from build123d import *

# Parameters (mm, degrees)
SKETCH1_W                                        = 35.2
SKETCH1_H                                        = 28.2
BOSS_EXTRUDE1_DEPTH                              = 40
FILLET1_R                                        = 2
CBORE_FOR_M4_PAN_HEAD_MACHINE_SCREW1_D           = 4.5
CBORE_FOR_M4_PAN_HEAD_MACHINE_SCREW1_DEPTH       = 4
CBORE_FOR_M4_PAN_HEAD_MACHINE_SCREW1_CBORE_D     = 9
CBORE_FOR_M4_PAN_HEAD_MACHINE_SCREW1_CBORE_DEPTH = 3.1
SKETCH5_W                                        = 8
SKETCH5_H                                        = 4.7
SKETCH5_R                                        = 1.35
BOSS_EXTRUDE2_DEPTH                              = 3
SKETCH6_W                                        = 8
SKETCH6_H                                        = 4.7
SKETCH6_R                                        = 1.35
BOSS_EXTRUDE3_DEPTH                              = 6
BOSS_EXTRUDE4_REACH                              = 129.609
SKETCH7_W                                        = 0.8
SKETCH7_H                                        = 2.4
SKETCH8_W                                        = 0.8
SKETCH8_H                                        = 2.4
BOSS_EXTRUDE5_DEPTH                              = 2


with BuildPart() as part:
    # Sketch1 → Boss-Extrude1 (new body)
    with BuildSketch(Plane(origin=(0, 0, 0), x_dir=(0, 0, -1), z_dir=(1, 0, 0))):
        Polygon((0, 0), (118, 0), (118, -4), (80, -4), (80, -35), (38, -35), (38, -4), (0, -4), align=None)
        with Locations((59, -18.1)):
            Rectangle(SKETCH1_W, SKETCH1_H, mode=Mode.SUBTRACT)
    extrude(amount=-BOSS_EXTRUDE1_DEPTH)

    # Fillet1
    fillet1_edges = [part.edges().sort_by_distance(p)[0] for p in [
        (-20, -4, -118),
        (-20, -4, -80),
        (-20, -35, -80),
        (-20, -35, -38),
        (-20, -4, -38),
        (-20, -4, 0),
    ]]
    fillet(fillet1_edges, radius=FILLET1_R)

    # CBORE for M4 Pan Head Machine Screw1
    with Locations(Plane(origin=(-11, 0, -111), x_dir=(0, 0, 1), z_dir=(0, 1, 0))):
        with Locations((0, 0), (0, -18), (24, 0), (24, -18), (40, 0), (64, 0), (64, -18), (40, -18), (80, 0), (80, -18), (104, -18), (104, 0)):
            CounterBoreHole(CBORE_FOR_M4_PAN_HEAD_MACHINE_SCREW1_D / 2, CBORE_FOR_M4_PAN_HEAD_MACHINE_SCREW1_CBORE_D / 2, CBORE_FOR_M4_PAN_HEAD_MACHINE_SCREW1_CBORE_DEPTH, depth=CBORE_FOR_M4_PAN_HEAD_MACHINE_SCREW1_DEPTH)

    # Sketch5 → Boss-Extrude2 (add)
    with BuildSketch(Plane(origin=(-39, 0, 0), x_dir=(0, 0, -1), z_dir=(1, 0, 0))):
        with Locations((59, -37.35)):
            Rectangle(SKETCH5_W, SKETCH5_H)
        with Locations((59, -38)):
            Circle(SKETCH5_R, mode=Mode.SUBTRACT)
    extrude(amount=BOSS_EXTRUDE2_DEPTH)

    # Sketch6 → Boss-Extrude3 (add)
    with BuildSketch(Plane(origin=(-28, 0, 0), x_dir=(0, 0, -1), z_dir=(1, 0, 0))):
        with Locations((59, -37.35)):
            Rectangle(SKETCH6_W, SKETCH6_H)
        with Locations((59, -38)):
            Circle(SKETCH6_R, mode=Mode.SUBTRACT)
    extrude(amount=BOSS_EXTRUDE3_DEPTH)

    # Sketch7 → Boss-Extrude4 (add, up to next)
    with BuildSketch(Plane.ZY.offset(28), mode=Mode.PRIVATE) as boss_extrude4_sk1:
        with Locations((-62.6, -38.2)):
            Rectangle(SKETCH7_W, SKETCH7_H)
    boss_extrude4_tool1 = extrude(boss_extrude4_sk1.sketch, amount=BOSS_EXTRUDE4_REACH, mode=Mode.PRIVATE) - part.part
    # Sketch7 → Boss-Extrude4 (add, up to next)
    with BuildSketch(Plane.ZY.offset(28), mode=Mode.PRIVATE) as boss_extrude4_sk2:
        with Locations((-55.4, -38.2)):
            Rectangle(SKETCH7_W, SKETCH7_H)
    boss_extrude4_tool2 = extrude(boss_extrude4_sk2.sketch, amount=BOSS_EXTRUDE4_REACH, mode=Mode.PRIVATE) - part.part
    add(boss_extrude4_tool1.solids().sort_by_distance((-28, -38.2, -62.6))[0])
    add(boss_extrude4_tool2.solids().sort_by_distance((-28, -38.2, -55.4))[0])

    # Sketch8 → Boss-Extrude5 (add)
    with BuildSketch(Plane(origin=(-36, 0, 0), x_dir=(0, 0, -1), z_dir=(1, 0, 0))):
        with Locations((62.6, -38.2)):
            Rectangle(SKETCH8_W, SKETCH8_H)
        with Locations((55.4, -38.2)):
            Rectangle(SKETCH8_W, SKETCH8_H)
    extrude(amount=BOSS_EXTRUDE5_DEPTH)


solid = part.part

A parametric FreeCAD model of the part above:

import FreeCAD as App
import Part
import Sketcher
from FreeCAD import Vector
Q = App.Units.Quantity


def edges_at(feature, points):
    """Names of the edges that pass closest to the given points."""
    edges = feature.Shape.Edges
    near = lambda p: min(range(len(edges)), key=lambda i: edges[i].distToShape(Part.Vertex(*p))[0])
    return sorted({f"Edge{near(p) + 1}" for p in points})


def add_polygon(sketch, points):
    """Adds a closed chain of lines whose ends are joined by coincident constraints."""
    first, n = sketch.GeometryCount, len(points)
    for a, b in zip(points, points[1:] + points[:1]):
        sketch.addGeometry(Part.LineSegment(App.Vector(*a, 0), App.Vector(*b, 0)), False)
    for i in range(n):
        sketch.addConstraint(Sketcher.Constraint("Coincident", first + i, 2, first + (i + 1) % n, 1))

doc = App.newDocument("Part")
body = doc.addObject("PartDesign::Body", "Body")

sketch1 = body.newObject("Sketcher::SketchObject", "Sketch")
sketch1.AttachmentSupport = (doc.getObject("YZ_Plane"), [""])
sketch1.MapMode = "FlatFace"
add_polygon(sketch1, [(0, -118), (0, 0), (-4, 0), (-4, -38), (-35, -38), (-35, -80), (-4, -80), (-4, -118)])
add_polygon(sketch1, [(-32.2, -41.4), (-4, -41.4), (-4, -76.6), (-32.2, -76.6)])
sketch1.addConstraint(Sketcher.Constraint("Vertical", 0))
sketch1.addConstraint(Sketcher.Constraint("Horizontal", 1))
sketch1.addConstraint(Sketcher.Constraint("Vertical", 2))
sketch1.addConstraint(Sketcher.Constraint("Horizontal", 3))
sketch1.addConstraint(Sketcher.Constraint("Vertical", 4))
sketch1.addConstraint(Sketcher.Constraint("Horizontal", 5))
sketch1.addConstraint(Sketcher.Constraint("Vertical", 6))
sketch1.addConstraint(Sketcher.Constraint("Horizontal", 7))
sketch1.addConstraint(Sketcher.Constraint("Horizontal", 8))
sketch1.addConstraint(Sketcher.Constraint("Vertical", 9))
sketch1.addConstraint(Sketcher.Constraint("Horizontal", 10))
sketch1.addConstraint(Sketcher.Constraint("Vertical", 11))
sketch1.addConstraint(Sketcher.Constraint("Coincident", 0, 2, -1, 1))
sketch1.addConstraint(Sketcher.Constraint("Vertical", 2, 2, 5, 2))
sketch1.addConstraint(Sketcher.Constraint("Vertical", 6, 2, 8, 2))
sketch1.addConstraint(Sketcher.Constraint("Equal", 2, 6))
sketch1.addConstraint(Sketcher.Constraint("DistanceX", 1, 2, 1, 1, Q("4 mm")))
sketch1.addConstraint(Sketcher.Constraint("DistanceX", 3, 2, 3, 1, Q("31 mm")))
sketch1.addConstraint(Sketcher.Constraint("DistanceY", 0, 1, 0, 2, Q("118 mm")))
sketch1.addConstraint(Sketcher.Constraint("DistanceY", 2, 2, 2, 1, Q("38 mm")))
sketch1.addConstraint(Sketcher.Constraint("DistanceX", 8, 1, 8, 2, Q("28.2 mm")))
sketch1.addConstraint(Sketcher.Constraint("DistanceY", 9, 2, 9, 1, Q("35.2 mm")))
sketch1.addConstraint(Sketcher.Constraint("DistanceY", 8, 2, -1, 1, Q("41.4 mm")))
pad1 = body.newObject("PartDesign::Pad", "Pad")
pad1.Profile = sketch1
pad1.Length = 40
pad1.Reversed = True
doc.recompute()

fillet = body.newObject("PartDesign::Fillet", "Fillet")
fillet.Base = (pad1, edges_at(pad1, [
    (-20, -4, -118),
    (-20, -4, -80),
    (-20, -35, -80),
    (-20, -35, -38),
    (-20, -4, -38),
    (-20, -4, 0),
]))
fillet.Radius = 2

sketch2 = body.newObject("Sketcher::SketchObject", "Sketch001")
sketch2.AttachmentSupport = (doc.getObject("XZ_Plane"), [""])
sketch2.MapMode = "FlatFace"
sketch2.addGeometry(Part.Circle(Vector(-11, -111, 0), Vector(0, 0, 1), 2.25), False)
sketch2.addGeometry(Part.Circle(Vector(-29, -111, 0), Vector(0, 0, 1), 2.25), False)
sketch2.addGeometry(Part.Circle(Vector(-11, -87, 0), Vector(0, 0, 1), 2.25), False)
sketch2.addGeometry(Part.Circle(Vector(-29, -87, 0), Vector(0, 0, 1), 2.25), False)
sketch2.addGeometry(Part.Circle(Vector(-11, -71, 0), Vector(0, 0, 1), 2.25), False)
sketch2.addGeometry(Part.Circle(Vector(-11, -47, 0), Vector(0, 0, 1), 2.25), False)
sketch2.addGeometry(Part.Circle(Vector(-29, -47, 0), Vector(0, 0, 1), 2.25), False)
sketch2.addGeometry(Part.Circle(Vector(-29, -71, 0), Vector(0, 0, 1), 2.25), False)
sketch2.addGeometry(Part.Circle(Vector(-11, -31, 0), Vector(0, 0, 1), 2.25), False)
sketch2.addGeometry(Part.Circle(Vector(-29, -31, 0), Vector(0, 0, 1), 2.25), False)
sketch2.addGeometry(Part.Circle(Vector(-29, -7, 0), Vector(0, 0, 1), 2.25), False)
sketch2.addGeometry(Part.Circle(Vector(-11, -7, 0), Vector(0, 0, 1), 2.25), False)
sketch2.addConstraint(Sketcher.Constraint("Equal", 0, 1))
sketch2.addConstraint(Sketcher.Constraint("Equal", 1, 2))
sketch2.addConstraint(Sketcher.Constraint("Equal", 2, 3))
sketch2.addConstraint(Sketcher.Constraint("Equal", 3, 4))
sketch2.addConstraint(Sketcher.Constraint("Equal", 4, 5))
sketch2.addConstraint(Sketcher.Constraint("Equal", 5, 6))
sketch2.addConstraint(Sketcher.Constraint("Equal", 6, 7))
sketch2.addConstraint(Sketcher.Constraint("Equal", 7, 8))
sketch2.addConstraint(Sketcher.Constraint("Equal", 8, 9))
sketch2.addConstraint(Sketcher.Constraint("Equal", 9, 10))
sketch2.addConstraint(Sketcher.Constraint("Equal", 10, 11))
sketch2.addConstraint(Sketcher.Constraint("Horizontal", 0, 3, 1, 3))
sketch2.addConstraint(Sketcher.Constraint("Horizontal", 2, 3, 3, 3))
sketch2.addConstraint(Sketcher.Constraint("Horizontal", 5, 3, 6, 3))
sketch2.addConstraint(Sketcher.Constraint("Horizontal", 4, 3, 7, 3))
sketch2.addConstraint(Sketcher.Constraint("Horizontal", 8, 3, 9, 3))
sketch2.addConstraint(Sketcher.Constraint("Horizontal", 10, 3, 11, 3))
sketch2.addConstraint(Sketcher.Constraint("Vertical", 0, 3, 2, 3))
sketch2.addConstraint(Sketcher.Constraint("Vertical", 1, 3, 3, 3))
sketch2.addConstraint(Sketcher.Constraint("Vertical", 2, 3, 4, 3))
sketch2.addConstraint(Sketcher.Constraint("Vertical", 4, 3, 5, 3))
sketch2.addConstraint(Sketcher.Constraint("Vertical", 3, 3, 6, 3))
sketch2.addConstraint(Sketcher.Constraint("Vertical", 6, 3, 7, 3))
sketch2.addConstraint(Sketcher.Constraint("Vertical", 5, 3, 8, 3))
sketch2.addConstraint(Sketcher.Constraint("Vertical", 7, 3, 9, 3))
sketch2.addConstraint(Sketcher.Constraint("Vertical", 9, 3, 10, 3))
sketch2.addConstraint(Sketcher.Constraint("Vertical", 8, 3, 11, 3))
sketch2.addConstraint(Sketcher.Constraint("Diameter", 0, Q("4.5 mm")))
sketch2.addConstraint(Sketcher.Constraint("DistanceX", 0, 3, -1, 1, Q("11 mm")))
sketch2.addConstraint(Sketcher.Constraint("DistanceY", 0, 3, -1, 1, Q("111 mm")))
sketch2.addConstraint(Sketcher.Constraint("DistanceX", 1, 3, -1, 1, Q("29 mm")))
sketch2.addConstraint(Sketcher.Constraint("DistanceY", 2, 3, -1, 1, Q("87 mm")))
sketch2.addConstraint(Sketcher.Constraint("DistanceY", 4, 3, -1, 1, Q("71 mm")))
sketch2.addConstraint(Sketcher.Constraint("DistanceY", 5, 3, -1, 1, Q("47 mm")))
sketch2.addConstraint(Sketcher.Constraint("DistanceY", 8, 3, -1, 1, Q("31 mm")))
sketch2.addConstraint(Sketcher.Constraint("DistanceY", 10, 3, -1, 1, Q("7 mm")))
doc.recompute()
hole = body.newObject("PartDesign::Hole", "Hole")
hole.Profile = sketch2
hole.ThreadType = "None"
hole.Diameter = 4.5
hole.DepthType = "Dimension"
hole.Depth = 4
hole.DrillPoint = "Flat"
hole.HoleCutType = "Counterbore"
hole.HoleCutDiameter = 9
hole.HoleCutDepth = 3.1
hole.Reversed = True

sketch3 = body.newObject("Sketcher::SketchObject", "Sketch002")
sketch3.AttachmentSupport = (doc.getObject("YZ_Plane"), [""])
sketch3.MapMode = "FlatFace"
sketch3.AttachmentOffset = App.Placement(Vector(0, 0, -39), App.Rotation())
add_polygon(sketch3, [(-35, -55), (-39.7, -55), (-39.7, -63), (-35, -63)])
sketch3.addGeometry(Part.Circle(Vector(-38, -59, 0), Vector(0, 0, 1), 1.35), False)
sketch3.addConstraint(Sketcher.Constraint("Horizontal", 0))
sketch3.addConstraint(Sketcher.Constraint("Vertical", 1))
sketch3.addConstraint(Sketcher.Constraint("Horizontal", 2))
sketch3.addConstraint(Sketcher.Constraint("Vertical", 3))
sketch3.addConstraint(Sketcher.Constraint("Diameter", 4, Q("2.7 mm")))
sketch3.addConstraint(Sketcher.Constraint("DistanceY", 1, 2, 1, 1, Q("8 mm")))
sketch3.addConstraint(Sketcher.Constraint("DistanceX", 0, 2, 0, 1, Q("4.7 mm")))
sketch3.addConstraint(Sketcher.Constraint("DistanceX", 4, 3, -1, 1, Q("38 mm")))
sketch3.addConstraint(Sketcher.Constraint("DistanceY", 4, 3, -1, 1, Q("59 mm")))
sketch3.addConstraint(Sketcher.Constraint("DistanceY", 0, 2, -1, 1, Q("55 mm")))
sketch3.addConstraint(Sketcher.Constraint("DistanceX", 2, 2, -1, 1, Q("35 mm")))
pad2 = body.newObject("PartDesign::Pad", "Pad001")
pad2.Profile = sketch3
pad2.Length = 3

sketch4 = body.newObject("Sketcher::SketchObject", "Sketch003")
sketch4.AttachmentSupport = (doc.getObject("YZ_Plane"), [""])
sketch4.MapMode = "FlatFace"
sketch4.AttachmentOffset = App.Placement(Vector(0, 0, -28), App.Rotation())
add_polygon(sketch4, [(-35, -55), (-39.7, -55), (-39.7, -63), (-35, -63)])
sketch4.addGeometry(Part.Circle(Vector(-38, -59, 0), Vector(0, 0, 1), 1.35), False)
sketch4.addConstraint(Sketcher.Constraint("Horizontal", 0))
sketch4.addConstraint(Sketcher.Constraint("Vertical", 1))
sketch4.addConstraint(Sketcher.Constraint("Horizontal", 2))
sketch4.addConstraint(Sketcher.Constraint("Vertical", 3))
sketch4.addConstraint(Sketcher.Constraint("Diameter", 4, Q("2.7 mm")))
sketch4.addConstraint(Sketcher.Constraint("DistanceY", 1, 2, 1, 1, Q("8 mm")))
sketch4.addConstraint(Sketcher.Constraint("DistanceX", 0, 2, 0, 1, Q("4.7 mm")))
sketch4.addConstraint(Sketcher.Constraint("DistanceX", 4, 3, -1, 1, Q("38 mm")))
sketch4.addConstraint(Sketcher.Constraint("DistanceY", 4, 3, -1, 1, Q("59 mm")))
sketch4.addConstraint(Sketcher.Constraint("DistanceY", 0, 2, -1, 1, Q("55 mm")))
sketch4.addConstraint(Sketcher.Constraint("DistanceX", 2, 2, -1, 1, Q("35 mm")))
pad3 = body.newObject("PartDesign::Pad", "Pad002")
pad3.Profile = sketch4
pad3.Length = 6

sketch5 = body.newObject("Sketcher::SketchObject", "Sketch004")
sketch5.AttachmentSupport = (doc.getObject("YZ_Plane"), [""])
sketch5.MapMode = "FlatFace"
sketch5.AttachmentOffset = App.Placement(Vector(0, 0, -28), App.Rotation())
add_polygon(sketch5, [(-37, -63), (-39.4, -63), (-39.4, -62.2), (-37, -62.2)])
sketch5.addConstraint(Sketcher.Constraint("Horizontal", 0))
sketch5.addConstraint(Sketcher.Constraint("Vertical", 1))
sketch5.addConstraint(Sketcher.Constraint("Horizontal", 2))
sketch5.addConstraint(Sketcher.Constraint("Vertical", 3))
sketch5.addConstraint(Sketcher.Constraint("DistanceX", 0, 2, 0, 1, Q("2.4 mm")))
sketch5.addConstraint(Sketcher.Constraint("DistanceY", 1, 1, 1, 2, Q("0.8 mm")))
sketch5.addConstraint(Sketcher.Constraint("DistanceY", 0, 2, -1, 1, Q("63 mm")))
sketch5.addConstraint(Sketcher.Constraint("DistanceX", 2, 2, -1, 1, Q("37 mm")))
pad4 = body.newObject("PartDesign::Pad", "Pad003")
pad4.Profile = sketch5
pad4.Type = "UpToFirst"
pad4.Reversed = True

sketch6 = body.newObject("Sketcher::SketchObject", "Sketch005")
sketch6.AttachmentSupport = (doc.getObject("YZ_Plane"), [""])
sketch6.MapMode = "FlatFace"
sketch6.AttachmentOffset = App.Placement(Vector(0, 0, -28), App.Rotation())
add_polygon(sketch6, [(-37, -55.8), (-39.4, -55.8), (-39.4, -55), (-37, -55)])
sketch6.addConstraint(Sketcher.Constraint("Horizontal", 0))
sketch6.addConstraint(Sketcher.Constraint("Vertical", 1))
sketch6.addConstraint(Sketcher.Constraint("Horizontal", 2))
sketch6.addConstraint(Sketcher.Constraint("Vertical", 3))
sketch6.addConstraint(Sketcher.Constraint("DistanceX", 0, 2, 0, 1, Q("2.4 mm")))
sketch6.addConstraint(Sketcher.Constraint("DistanceY", 1, 1, 1, 2, Q("0.8 mm")))
sketch6.addConstraint(Sketcher.Constraint("DistanceY", 1, 2, -1, 1, Q("55 mm")))
sketch6.addConstraint(Sketcher.Constraint("DistanceX", 2, 2, -1, 1, Q("37 mm")))
pad5 = body.newObject("PartDesign::Pad", "Pad004")
pad5.Profile = sketch6
pad5.Type = "UpToFirst"
pad5.Reversed = True

sketch7 = body.newObject("Sketcher::SketchObject", "Sketch006")
sketch7.AttachmentSupport = (doc.getObject("YZ_Plane"), [""])
sketch7.MapMode = "FlatFace"
sketch7.AttachmentOffset = App.Placement(Vector(0, 0, -36), App.Rotation())
add_polygon(sketch7, [(-37, -62.2), (-39.4, -62.2), (-39.4, -63), (-37, -63)])
add_polygon(sketch7, [(-37, -55), (-39.4, -55), (-39.4, -55.8), (-37, -55.8)])
sketch7.addConstraint(Sketcher.Constraint("Horizontal", 0))
sketch7.addConstraint(Sketcher.Constraint("Vertical", 1))
sketch7.addConstraint(Sketcher.Constraint("Horizontal", 2))
sketch7.addConstraint(Sketcher.Constraint("Vertical", 3))
sketch7.addConstraint(Sketcher.Constraint("Horizontal", 4))
sketch7.addConstraint(Sketcher.Constraint("Vertical", 5))
sketch7.addConstraint(Sketcher.Constraint("Horizontal", 6))
sketch7.addConstraint(Sketcher.Constraint("Vertical", 7))
sketch7.addConstraint(Sketcher.Constraint("Vertical", 1, 2, 4, 2))
sketch7.addConstraint(Sketcher.Constraint("Vertical", 3, 2, 6, 2))
sketch7.addConstraint(Sketcher.Constraint("Equal", 3, 5))
sketch7.addConstraint(Sketcher.Constraint("DistanceX", 0, 2, 0, 1, Q("2.4 mm")))
sketch7.addConstraint(Sketcher.Constraint("DistanceY", 1, 2, 1, 1, Q("0.8 mm")))
sketch7.addConstraint(Sketcher.Constraint("DistanceY", 1, 2, -1, 1, Q("63 mm")))
sketch7.addConstraint(Sketcher.Constraint("DistanceX", 2, 2, -1, 1, Q("37 mm")))
sketch7.addConstraint(Sketcher.Constraint("DistanceY", 4, 2, -1, 1, Q("55 mm")))
pad6 = body.newObject("PartDesign::Pad", "Pad005")
pad6.Profile = sketch7
pad6.Length = 2

doc.recompute()
